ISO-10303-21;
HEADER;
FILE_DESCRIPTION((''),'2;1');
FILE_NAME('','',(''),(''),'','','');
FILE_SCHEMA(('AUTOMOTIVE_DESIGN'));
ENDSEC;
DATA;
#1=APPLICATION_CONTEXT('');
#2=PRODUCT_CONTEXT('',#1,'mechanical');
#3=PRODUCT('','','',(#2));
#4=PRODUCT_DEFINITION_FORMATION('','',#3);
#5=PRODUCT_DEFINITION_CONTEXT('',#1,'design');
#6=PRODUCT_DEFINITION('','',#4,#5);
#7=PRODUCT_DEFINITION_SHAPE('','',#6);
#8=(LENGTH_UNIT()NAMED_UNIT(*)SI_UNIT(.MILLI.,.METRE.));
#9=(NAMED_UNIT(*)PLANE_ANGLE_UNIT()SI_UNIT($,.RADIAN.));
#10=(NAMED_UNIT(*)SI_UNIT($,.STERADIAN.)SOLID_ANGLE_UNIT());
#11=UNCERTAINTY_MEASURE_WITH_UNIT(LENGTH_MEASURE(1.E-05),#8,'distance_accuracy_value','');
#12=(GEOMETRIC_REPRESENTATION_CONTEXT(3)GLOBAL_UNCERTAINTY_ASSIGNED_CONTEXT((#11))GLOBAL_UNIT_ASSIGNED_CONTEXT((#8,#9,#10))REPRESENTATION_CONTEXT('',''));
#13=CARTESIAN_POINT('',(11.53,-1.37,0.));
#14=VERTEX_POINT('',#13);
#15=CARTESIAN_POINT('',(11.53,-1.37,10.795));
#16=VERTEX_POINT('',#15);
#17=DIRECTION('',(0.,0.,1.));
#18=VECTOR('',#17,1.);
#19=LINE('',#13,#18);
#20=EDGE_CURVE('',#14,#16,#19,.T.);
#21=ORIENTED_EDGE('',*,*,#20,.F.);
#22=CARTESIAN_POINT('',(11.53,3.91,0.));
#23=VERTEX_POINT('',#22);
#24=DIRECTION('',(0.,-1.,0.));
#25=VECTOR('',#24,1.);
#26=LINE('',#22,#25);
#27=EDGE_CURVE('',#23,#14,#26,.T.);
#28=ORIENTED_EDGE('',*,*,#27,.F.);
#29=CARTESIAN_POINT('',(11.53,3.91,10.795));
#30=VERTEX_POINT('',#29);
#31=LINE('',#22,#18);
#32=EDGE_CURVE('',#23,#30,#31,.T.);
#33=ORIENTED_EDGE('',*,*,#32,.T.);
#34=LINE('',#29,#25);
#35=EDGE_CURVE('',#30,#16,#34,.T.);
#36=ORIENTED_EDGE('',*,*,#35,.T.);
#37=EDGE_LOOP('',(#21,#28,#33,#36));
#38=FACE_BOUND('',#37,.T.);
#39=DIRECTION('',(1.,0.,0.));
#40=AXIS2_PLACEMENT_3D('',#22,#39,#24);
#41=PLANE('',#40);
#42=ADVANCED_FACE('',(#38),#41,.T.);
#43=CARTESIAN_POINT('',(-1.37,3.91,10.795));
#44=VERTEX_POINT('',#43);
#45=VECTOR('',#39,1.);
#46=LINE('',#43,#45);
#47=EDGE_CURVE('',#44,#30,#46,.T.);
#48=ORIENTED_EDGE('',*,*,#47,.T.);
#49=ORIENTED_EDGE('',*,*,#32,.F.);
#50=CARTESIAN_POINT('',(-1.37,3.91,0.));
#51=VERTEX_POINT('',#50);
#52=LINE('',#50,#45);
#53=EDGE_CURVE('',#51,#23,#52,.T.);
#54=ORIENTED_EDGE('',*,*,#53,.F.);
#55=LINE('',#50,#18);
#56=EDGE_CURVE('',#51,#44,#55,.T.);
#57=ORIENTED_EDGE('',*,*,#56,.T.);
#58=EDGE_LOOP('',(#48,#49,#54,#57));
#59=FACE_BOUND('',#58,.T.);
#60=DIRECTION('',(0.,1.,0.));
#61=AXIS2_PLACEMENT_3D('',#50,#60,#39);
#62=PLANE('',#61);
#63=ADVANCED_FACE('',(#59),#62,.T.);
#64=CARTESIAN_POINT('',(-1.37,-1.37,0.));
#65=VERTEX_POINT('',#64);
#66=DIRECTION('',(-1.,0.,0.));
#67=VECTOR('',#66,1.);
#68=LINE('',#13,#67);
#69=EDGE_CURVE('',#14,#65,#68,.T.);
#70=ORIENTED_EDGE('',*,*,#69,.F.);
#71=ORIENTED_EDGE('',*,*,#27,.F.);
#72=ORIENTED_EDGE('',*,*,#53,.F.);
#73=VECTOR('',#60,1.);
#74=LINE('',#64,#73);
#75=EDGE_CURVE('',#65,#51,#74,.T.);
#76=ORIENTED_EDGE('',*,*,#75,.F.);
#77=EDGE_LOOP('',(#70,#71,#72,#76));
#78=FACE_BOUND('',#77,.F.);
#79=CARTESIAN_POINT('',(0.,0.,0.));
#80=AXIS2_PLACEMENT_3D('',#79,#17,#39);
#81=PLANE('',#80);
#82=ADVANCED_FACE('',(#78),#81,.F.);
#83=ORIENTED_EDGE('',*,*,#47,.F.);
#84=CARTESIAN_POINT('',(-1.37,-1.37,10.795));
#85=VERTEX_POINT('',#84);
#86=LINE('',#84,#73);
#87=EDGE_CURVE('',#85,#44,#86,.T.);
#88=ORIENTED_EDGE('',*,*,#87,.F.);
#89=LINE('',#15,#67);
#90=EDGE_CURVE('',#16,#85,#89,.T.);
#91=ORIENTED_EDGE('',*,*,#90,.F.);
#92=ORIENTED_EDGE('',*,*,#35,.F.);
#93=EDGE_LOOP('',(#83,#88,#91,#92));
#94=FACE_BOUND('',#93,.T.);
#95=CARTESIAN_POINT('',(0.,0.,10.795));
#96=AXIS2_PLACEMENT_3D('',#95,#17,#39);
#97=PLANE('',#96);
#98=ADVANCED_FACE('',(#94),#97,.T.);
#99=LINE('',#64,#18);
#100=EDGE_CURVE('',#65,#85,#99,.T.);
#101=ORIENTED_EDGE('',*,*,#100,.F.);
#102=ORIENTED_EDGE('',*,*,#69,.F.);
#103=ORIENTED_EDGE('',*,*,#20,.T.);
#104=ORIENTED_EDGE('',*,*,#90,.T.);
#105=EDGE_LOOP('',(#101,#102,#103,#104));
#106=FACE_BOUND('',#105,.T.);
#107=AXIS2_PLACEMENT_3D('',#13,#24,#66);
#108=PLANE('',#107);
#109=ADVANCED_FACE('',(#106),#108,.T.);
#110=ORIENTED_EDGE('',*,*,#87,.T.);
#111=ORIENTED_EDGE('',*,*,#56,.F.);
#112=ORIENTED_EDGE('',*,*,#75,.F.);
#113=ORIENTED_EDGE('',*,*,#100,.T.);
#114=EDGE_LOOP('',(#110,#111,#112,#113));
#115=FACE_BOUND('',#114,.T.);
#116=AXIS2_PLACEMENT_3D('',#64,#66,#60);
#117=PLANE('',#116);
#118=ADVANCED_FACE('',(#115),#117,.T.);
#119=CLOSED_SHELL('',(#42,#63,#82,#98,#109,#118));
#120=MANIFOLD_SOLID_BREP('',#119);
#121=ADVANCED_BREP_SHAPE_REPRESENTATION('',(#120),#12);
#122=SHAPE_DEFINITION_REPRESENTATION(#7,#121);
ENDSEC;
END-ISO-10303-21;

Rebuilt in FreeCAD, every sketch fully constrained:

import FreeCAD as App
import Part
import Sketcher
Q = App.Units.Quantity


def add_polygon(sketch, points):
    """Adds a closed chain of lines whose ends are joined by coincident constraints."""
    first, n = sketch.GeometryCount, len(points)
    for a, b in zip(points, points[1:] + points[:1]):
        sketch.addGeometry(Part.LineSegment(App.Vector(*a, 0), App.Vector(*b, 0)), False)
    for i in range(n):
        sketch.addConstraint(Sketcher.Constraint("Coincident", first + i, 2, first + (i + 1) % n, 1))

doc = App.newDocument("Part")
params = doc.addObject("Spreadsheet::Sheet", "Params")
for row, (alias, value) in enumerate([
    ("sketch1_width", "12.9 mm"),
    ("sketch1_height", "5.28 mm"),
    ("pad1_length", "10.795 mm"),
], start=1):
    params.set(f"A{row}", alias)
    params.set(f"B{row}", "=" + value)
    params.setAlias(f"B{row}", alias)

body = doc.addObject("PartDesign::Body", "Body")

# Sketch on XY plane
sketch1 = body.newObject("Sketcher::SketchObject", "Sketch")
sketch1.AttachmentSupport = (doc.getObject("XY_Plane"), [""])
sketch1.MapMode = "FlatFace"
add_polygon(sketch1, [(11.53, -1.37), (11.53, 3.91), (-1.37, 3.91), (-1.37, -1.37)])  # lines 0-3
sketch1.addConstraint([
    Sketcher.Constraint("Vertical", 0),
    Sketcher.Constraint("Horizontal", 1),
    Sketcher.Constraint("Vertical", 2),
    Sketcher.Constraint("Horizontal", 3),
    Sketcher.Constraint("DistanceX", 1, 2, 1, 1, Q("12.9 mm")),
    Sketcher.Constraint("DistanceY", 0, 1, 0, 2, Q("5.28 mm")),
    Sketcher.Constraint("DistanceX", -1, 1, 0, 2, Q("11.53 mm")),
    Sketcher.Constraint("DistanceY", -1, 1, 0, 2, Q("3.91 mm")),
])
sketch1.setExpression("Constraints[8]", "Params.sketch1_width")
sketch1.setExpression("Constraints[9]", "Params.sketch1_height")
pad1 = body.newObject("PartDesign::Pad", "Pad")
pad1.Profile = sketch1
pad1.setExpression("Length", "Params.pad1_length")

doc.recompute()
